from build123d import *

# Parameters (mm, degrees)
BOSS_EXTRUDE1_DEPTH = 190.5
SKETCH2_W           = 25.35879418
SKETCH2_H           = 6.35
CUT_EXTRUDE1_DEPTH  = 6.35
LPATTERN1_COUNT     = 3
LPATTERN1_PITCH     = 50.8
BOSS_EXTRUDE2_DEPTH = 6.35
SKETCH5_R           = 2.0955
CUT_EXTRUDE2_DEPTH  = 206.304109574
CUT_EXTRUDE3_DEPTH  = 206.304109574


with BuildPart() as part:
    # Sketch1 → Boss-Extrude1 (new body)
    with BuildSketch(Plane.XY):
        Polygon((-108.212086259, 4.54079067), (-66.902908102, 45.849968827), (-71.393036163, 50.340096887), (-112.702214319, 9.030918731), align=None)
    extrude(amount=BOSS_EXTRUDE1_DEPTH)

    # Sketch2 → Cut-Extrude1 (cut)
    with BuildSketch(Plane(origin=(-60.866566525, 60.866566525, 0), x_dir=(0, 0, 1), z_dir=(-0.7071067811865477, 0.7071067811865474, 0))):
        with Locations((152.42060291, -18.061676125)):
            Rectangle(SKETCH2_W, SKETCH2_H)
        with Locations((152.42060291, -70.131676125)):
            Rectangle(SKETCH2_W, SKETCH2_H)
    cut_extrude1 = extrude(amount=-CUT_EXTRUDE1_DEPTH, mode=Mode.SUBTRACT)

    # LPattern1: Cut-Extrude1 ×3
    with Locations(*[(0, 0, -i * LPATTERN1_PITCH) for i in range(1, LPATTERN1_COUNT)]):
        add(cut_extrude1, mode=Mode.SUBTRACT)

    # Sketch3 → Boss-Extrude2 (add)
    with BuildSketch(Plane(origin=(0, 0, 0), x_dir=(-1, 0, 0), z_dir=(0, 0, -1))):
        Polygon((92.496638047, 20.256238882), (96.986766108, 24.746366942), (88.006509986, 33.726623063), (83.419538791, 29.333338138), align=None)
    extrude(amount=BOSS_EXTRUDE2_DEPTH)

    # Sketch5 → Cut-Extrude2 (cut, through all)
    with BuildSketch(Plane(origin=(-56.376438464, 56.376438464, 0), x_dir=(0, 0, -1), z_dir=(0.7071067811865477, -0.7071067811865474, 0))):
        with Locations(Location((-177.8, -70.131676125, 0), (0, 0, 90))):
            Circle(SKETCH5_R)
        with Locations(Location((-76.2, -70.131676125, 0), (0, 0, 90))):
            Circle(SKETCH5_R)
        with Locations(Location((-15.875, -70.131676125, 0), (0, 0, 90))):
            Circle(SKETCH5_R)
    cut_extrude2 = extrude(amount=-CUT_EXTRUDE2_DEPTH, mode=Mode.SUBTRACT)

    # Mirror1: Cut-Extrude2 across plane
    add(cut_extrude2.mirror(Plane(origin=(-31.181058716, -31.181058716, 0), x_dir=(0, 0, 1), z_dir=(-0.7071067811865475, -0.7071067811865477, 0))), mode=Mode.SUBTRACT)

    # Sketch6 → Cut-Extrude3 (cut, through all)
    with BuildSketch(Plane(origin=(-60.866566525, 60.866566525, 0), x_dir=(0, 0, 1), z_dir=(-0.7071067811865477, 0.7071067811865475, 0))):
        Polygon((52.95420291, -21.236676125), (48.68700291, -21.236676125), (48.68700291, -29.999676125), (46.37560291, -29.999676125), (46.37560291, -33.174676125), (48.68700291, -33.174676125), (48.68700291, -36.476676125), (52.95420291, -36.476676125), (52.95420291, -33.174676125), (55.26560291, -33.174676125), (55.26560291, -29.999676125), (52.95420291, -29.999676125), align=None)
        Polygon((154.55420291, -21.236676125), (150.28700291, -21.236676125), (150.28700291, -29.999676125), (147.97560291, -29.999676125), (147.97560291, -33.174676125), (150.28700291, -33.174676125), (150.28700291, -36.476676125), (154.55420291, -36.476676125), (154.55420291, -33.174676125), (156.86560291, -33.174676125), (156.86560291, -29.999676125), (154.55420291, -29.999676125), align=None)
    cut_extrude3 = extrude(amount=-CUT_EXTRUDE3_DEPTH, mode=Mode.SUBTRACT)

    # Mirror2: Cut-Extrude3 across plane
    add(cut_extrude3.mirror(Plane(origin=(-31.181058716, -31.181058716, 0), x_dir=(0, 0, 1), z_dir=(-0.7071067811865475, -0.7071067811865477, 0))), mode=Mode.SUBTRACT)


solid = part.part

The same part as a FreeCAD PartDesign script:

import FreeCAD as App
import Part
import Sketcher
from FreeCAD import Vector
Q = App.Units.Quantity

doc = App.newDocument("Part")
body = doc.addObject("PartDesign::Body", "Body")

# Sketch on XY plane
sketch1 = doc.addObject("Sketcher::SketchObject", "Sketch")
body.addObject(sketch1)
sketch1.AttachmentSupport = (doc.XY_Plane, [""])
sketch1.MapMode = "FlatFace"
sketch1.addGeometry([
    Part.LineSegment(Vector(-108, 5, 0), Vector(-67, 46, 0)),
    Part.LineSegment(Vector(-67, 46, 0), Vector(-71, 50, 0)),
    Part.LineSegment(Vector(-71, 50, 0), Vector(-113, 9, 0)),
    Part.LineSegment(Vector(-113, 9, 0), Vector(-108, 5, 0)),
], False)
sketch1.addConstraint([
    Sketcher.Constraint("Coincident", 0, 2, 1, 1),
    Sketcher.Constraint("Coincident", 1, 2, 2, 1),
    Sketcher.Constraint("Coincident", 2, 2, 3, 1),
    Sketcher.Constraint("Coincident", 3, 2, 0, 1),
    Sketcher.Constraint("Perpendicular", 0, 1),
    Sketcher.Constraint("Perpendicular", 1, 2),
    Sketcher.Constraint("Perpendicular", 2, 3),
    Sketcher.Constraint("Angle", 0, Q("45 deg")),
    Sketcher.Constraint("Distance", 0, Q("2.3 in")),
    Sketcher.Constraint("Distance", 1, Q("0.25 in")),
    Sketcher.Constraint("DistanceX", 0, 2, -1, 1, Q("66.902908 mm")),
    Sketcher.Constraint("DistanceY", -1, 1, 0, 2, Q("45.849969 mm")),
])
pad1 = doc.addObject("PartDesign::Pad", "Pad")
body.addObject(pad1)
pad1.Profile = sketch1
pad1.Length = Q("7.5 in")

# Sketch on an angled plane
sketch2 = doc.addObject("Sketcher::SketchObject", "Sketch001")
body.addObject(sketch2)
sketch2.Placement = App.Placement(Vector(-60.866567, 60.866567, 0), App.Rotation(Vector(0, 0, 1), Vector(0.707106781, 0.707106781, 0), Vector(-0.707106781, 0.707106781, 0), "ZXY"))
sketch2.addGeometry([
    Part.LineSegment(Vector(140, -15, 0), Vector(140, -21, 0)),  # 0
    Part.LineSegment(Vector(140, -21, 0), Vector(165, -21, 0)),  # 1
    Part.LineSegment(Vector(165, -21, 0), Vector(165, -15, 0)),  # 2
    Part.LineSegment(Vector(165, -15, 0), Vector(140, -15, 0)),  # 3
    Part.LineSegment(Vector(140, -67, 0), Vector(140, -73, 0)),  # 4
    Part.LineSegment(Vector(140, -73, 0), Vector(165, -73, 0)),  # 5
    Part.LineSegment(Vector(165, -73, 0), Vector(165, -67, 0)),  # 6
    Part.LineSegment(Vector(165, -67, 0), Vector(140, -67, 0)),  # 7
], False)
sketch2.addConstraint([
    Sketcher.Constraint("Coincident", 0, 2, 1, 1),
    Sketcher.Constraint("Coincident", 1, 2, 2, 1),
    Sketcher.Constraint("Coincident", 2, 2, 3, 1),
    Sketcher.Constraint("Coincident", 3, 2, 0, 1),
    Sketcher.Constraint("Coincident", 4, 2, 5, 1),
    Sketcher.Constraint("Coincident", 5, 2, 6, 1),
    Sketcher.Constraint("Coincident", 6, 2, 7, 1),
    Sketcher.Constraint("Coincident", 7, 2, 4, 1),
    Sketcher.Constraint("Vertical", 0),
    Sketcher.Constraint("Horizontal", 1),
    Sketcher.Constraint("Vertical", 2),
    Sketcher.Constraint("Horizontal", 3),
    Sketcher.Constraint("Vertical", 4),
    Sketcher.Constraint("Horizontal", 5),
    Sketcher.Constraint("Vertical", 6),
    Sketcher.Constraint("Horizontal", 7),
    Sketcher.Constraint("Vertical", 3, 2, 4, 2),
    Sketcher.Constraint("Vertical", 2, 2, 5, 2),
    Sketcher.Constraint("Equal", 2, 4),
    Sketcher.Constraint("DistanceY", 0, 2, 0, 1, Q("0.25 in")),
    Sketcher.Constraint("DistanceX", -1, 1, 1, 2, Q("6.5 in")),
    Sketcher.Constraint("DistanceY", 4, 2, 3, 2, Q("2.3 in")),
    Sketcher.Constraint("DistanceX", 1, 1, 1, 2, Q("25.358794 mm")),
    Sketcher.Constraint("DistanceY", 0, 2, -1, 1, Q("21.236676 mm")),
])
pocket1 = doc.addObject("PartDesign::Pocket", "Pocket")
body.addObject(pocket1)
pocket1.Profile = sketch2
pocket1.Length = Q("0.25 in")
doc.recompute()

linearpattern = doc.addObject("PartDesign::LinearPattern", "LinearPattern")
body.addObject(linearpattern)
linearpattern.Originals = [pocket1]
linearpattern.Direction = (doc.Z_Axis, [""])
linearpattern.Mode = "offset"
linearpattern.Offset = Q("2 in")
linearpattern.Occurrences = 3
linearpattern.Reversed = True
body.Tip = linearpattern

# Sketch on XY plane
sketch3 = doc.addObject("Sketcher::SketchObject", "Sketch002")
body.addObject(sketch3)
sketch3.AttachmentSupport = (doc.XY_Plane, [""])
sketch3.MapMode = "FlatFace"
sketch3.addGeometry([
    Part.LineSegment(Vector(-92, 20, 0), Vector(-97, 25, 0)),
    Part.LineSegment(Vector(-97, 25, 0), Vector(-88, 34, 0)),
    Part.LineSegment(Vector(-88, 34, 0), Vector(-83, 29, 0)),
    Part.LineSegment(Vector(-83, 29, 0), Vector(-92, 20, 0)),
], False)
sketch3.addConstraint([
    Sketcher.Constraint("Coincident", 0, 2, 1, 1),
    Sketcher.Constraint("Coincident", 1, 2, 2, 1),
    Sketcher.Constraint("Coincident", 2, 2, 3, 1),
    Sketcher.Constraint("Coincident", 3, 2, 0, 1),
    Sketcher.Constraint("Perpendicular", 0, 1),
    Sketcher.Constraint("Parallel", 1, 3),
    Sketcher.Constraint("Angle", 0, Q("135 deg")),
    Sketcher.Constraint("Distance", 1, Q("0.5 in")),
    Sketcher.Constraint("Distance", 0, Q("0.25 in")),
    Sketcher.Constraint("DistanceX", 3, 2, -1, 1, Q("3.6415999 in")),
    Sketcher.Constraint("DistanceX", 3, 2, 2, 2, Q("9.077099 mm")),
    Sketcher.Constraint("DistanceY", -1, 1, 2, 2, Q("29.333338 mm")),
])
pad2 = doc.addObject("PartDesign::Pad", "Pad001")
body.addObject(pad2)
pad2.Profile = sketch3
pad2.Length = Q("0.25 in")
pad2.Reversed = True

# Sketch on an angled plane
sketch4 = doc.addObject("Sketcher::SketchObject", "Sketch003")
body.addObject(sketch4)
sketch4.Placement = App.Placement(Vector(-56.376438, 56.376438, 0), App.Rotation(Vector(0, 0, -1), Vector(0.707106781, 0.707106781, 0), Vector(0.707106781, -0.707106781, 0), "ZXY"))
sketch4.addGeometry([
    Part.Circle(Vector(-177.8, -70.1, 0), Vector(0, 0, 1), 2.1),
    Part.Circle(Vector(-76.2, -70.1, 0), Vector(0, 0, 1), 2.1),
    Part.Circle(Vector(-15.9, -70.1, 0), Vector(0, 0, 1), 2.1),
], False)
sketch4.addConstraint([
    Sketcher.Constraint("Equal", 0, 1),
    Sketcher.Constraint("Equal", 1, 2),
    Sketcher.Constraint("Horizontal", 0, 3, 1, 3),
    Sketcher.Constraint("Horizontal", 1, 3, 2, 3),
    Sketcher.Constraint("Diameter", 0, Q("0.165 in")),
    Sketcher.Constraint("DistanceX", 0, 3, -1, 1, Q("7 in")),
    Sketcher.Constraint("DistanceX", 1, 3, -1, 1, Q("3 in")),
    Sketcher.Constraint("DistanceX", 2, 3, -1, 1, Q("0.625 in")),
    Sketcher.Constraint("DistanceY", 0, 3, -1, 1, Q("70.131676 mm")),
])
pocket2 = doc.addObject("PartDesign::Pocket", "Pocket001")
body.addObject(pocket2)
pocket2.Profile = sketch4
pocket2.Type = "ThroughAll"
doc.recompute()

datumplane = doc.addObject("PartDesign::Plane", "DatumPlane")
body.addObject(datumplane)
datumplane.Placement = App.Placement(Vector(-31.181059, -31.181059, 0), App.Rotation(Vector(-0.707106781, 0.707106781, 0), Vector(0, 0, -1), Vector(-0.707106781, -0.707106781, 0), "ZXY"))
mirrored = doc.addObject("PartDesign::Mirrored", "Mirrored")
body.addObject(mirrored)
mirrored.Originals = [pocket2]
mirrored.MirrorPlane = (datumplane, [""])
body.Tip = mirrored

# Sketch on an angled plane
sketch5 = doc.addObject("Sketcher::SketchObject", "Sketch004")
body.addObject(sketch5)
sketch5.Placement = App.Placement(Vector(-60.866567, 60.866567, 0), App.Rotation(Vector(0, 0, 1), Vector(0.707106781, 0.707106781, 0), Vector(-0.707106781, 0.707106781, 0), "ZXY"))
sketch5.addGeometry([
    Part.LineSegment(Vector(53, -21.2, 0), Vector(48.7, -21.2, 0)),  # 0
    Part.LineSegment(Vector(48.7, -21.2, 0), Vector(48.7, -30, 0)),  # 1
    Part.LineSegment(Vector(48.7, -30, 0), Vector(46.4, -30, 0)),  # 2
    Part.LineSegment(Vector(46.4, -30, 0), Vector(46.4, -33.2, 0)),  # 3
    Part.LineSegment(Vector(46.4, -33.2, 0), Vector(48.7, -33.2, 0)),  # 4
    Part.LineSegment(Vector(48.7, -33.2, 0), Vector(48.7, -36.5, 0)),  # 5
    Part.LineSegment(Vector(48.7, -36.5, 0), Vector(53, -36.5, 0)),  # 6
    Part.LineSegment(Vector(53, -36.5, 0), Vector(53, -33.2, 0)),  # 7
    Part.LineSegment(Vector(53, -33.2, 0), Vector(55.3, -33.2, 0)),  # 8
    Part.LineSegment(Vector(55.3, -33.2, 0), Vector(55.3, -30, 0)),  # 9
    Part.LineSegment(Vector(55.3, -30, 0), Vector(53, -30, 0)),  # 10
    Part.LineSegment(Vector(53, -30, 0), Vector(53, -21.2, 0)),  # 11
    Part.LineSegment(Vector(154.6, -21.2, 0), Vector(150.3, -21.2, 0)),  # 12
    Part.LineSegment(Vector(150.3, -21.2, 0), Vector(150.3, -30, 0)),  # 13
    Part.LineSegment(Vector(150.3, -30, 0), Vector(148, -30, 0)),  # 14
    Part.LineSegment(Vector(148, -30, 0), Vector(148, -33.2, 0)),  # 15
    Part.LineSegment(Vector(148, -33.2, 0), Vector(150.3, -33.2, 0)),  # 16
    Part.LineSegment(Vector(150.3, -33.2, 0), Vector(150.3, -36.5, 0)),  # 17
    Part.LineSegment(Vector(150.3, -36.5, 0), Vector(154.6, -36.5, 0)),  # 18
    Part.LineSegment(Vector(154.6, -36.5, 0), Vector(154.6, -33.2, 0)),  # 19
    Part.LineSegment(Vector(154.6, -33.2, 0), Vector(156.9, -33.2, 0)),  # 20
    Part.LineSegment(Vector(156.9, -33.2, 0), Vector(156.9, -30, 0)),  # 21
    Part.LineSegment(Vector(156.9, -30, 0), Vector(154.6, -30, 0)),  # 22
    Part.LineSegment(Vector(154.6, -30, 0), Vector(154.6, -21.2, 0)),  # 23
], False)
sketch5.addConstraint([
    Sketcher.Constraint("Coincident", 0, 2, 1, 1),
    Sketcher.Constraint("Coincident", 1, 2, 2, 1),
    Sketcher.Constraint("Coincident", 2, 2, 3, 1),
    Sketcher.Constraint("Coincident", 3, 2, 4, 1),
    Sketcher.Constraint("Coincident", 4, 2, 5, 1),
    Sketcher.Constraint("Coincident", 5, 2, 6, 1),
    Sketcher.Constraint("Coincident", 6, 2, 7, 1),
    Sketcher.Constraint("Coincident", 7, 2, 8, 1),
    Sketcher.Constraint("Coincident", 8, 2, 9, 1),
    Sketcher.Constraint("Coincident", 9, 2, 10, 1),
    Sketcher.Constraint("Coincident", 10, 2, 11, 1),
    Sketcher.Constraint("Coincident", 11, 2, 0, 1),
    Sketcher.Constraint("Coincident", 12, 2, 13, 1),
    Sketcher.Constraint("Coincident", 13, 2, 14, 1),
    Sketcher.Constraint("Coincident", 14, 2, 15, 1),
    Sketcher.Constraint("Coincident", 15, 2, 16, 1),
    Sketcher.Constraint("Coincident", 16, 2, 17, 1),
    Sketcher.Constraint("Coincident", 17, 2, 18, 1),
    Sketcher.Constraint("Coincident", 18, 2, 19, 1),
    Sketcher.Constraint("Coincident", 19, 2, 20, 1),
    Sketcher.Constraint("Coincident", 20, 2, 21, 1),
    Sketcher.Constraint("Coincident", 21, 2, 22, 1),
    Sketcher.Constraint("Coincident", 22, 2, 23, 1),
    Sketcher.Constraint("Coincident", 23, 2, 12, 1),
    Sketcher.Constraint("Horizontal", 0),
    Sketcher.Constraint("Vertical", 1),
    Sketcher.Constraint("Horizontal", 2),
    Sketcher.Constraint("Vertical", 3),
    Sketcher.Constraint("Horizontal", 4),
    Sketcher.Constraint("Vertical", 5),
    Sketcher.Constraint("Horizontal", 6),
    Sketcher.Constraint("Vertical", 7),
    Sketcher.Constraint("Horizontal", 8),
    Sketcher.Constraint("Vertical", 9),
    Sketcher.Constraint("Horizontal", 10),
    Sketcher.Constraint("Vertical", 11),
    Sketcher.Constraint("Horizontal", 12),
    Sketcher.Constraint("Vertical", 13),
    Sketcher.Constraint("Horizontal", 14),
    Sketcher.Constraint("Vertical", 15),
    Sketcher.Constraint("Horizontal", 16),
    Sketcher.Constraint("Vertical", 17),
    Sketcher.Constraint("Horizontal", 18),
    Sketcher.Constraint("Vertical", 19),
    Sketcher.Constraint("Horizontal", 20),
    Sketcher.Constraint("Vertical", 21),
    Sketcher.Constraint("Horizontal", 22),
    Sketcher.Constraint("Vertical", 23),
    Sketcher.Constraint("Horizontal", 4, 2, 7, 2),
    Sketcher.Constraint("Horizontal", 2, 2, 9, 2),
    Sketcher.Constraint("Horizontal", 11, 2, 12, 2),
    Sketcher.Constraint("Horizontal", 10, 2, 13, 2),
    Sketcher.Constraint("Horizontal", 8, 2, 15, 2),
    Sketcher.Constraint("Horizontal", 6, 2, 17, 2),
    Sketcher.Constraint("Horizontal", 16, 2, 19, 2),
    Sketcher.Constraint("Horizontal", 14, 2, 21, 2),
    Sketcher.Constraint("Vertical", 1, 2, 4, 2),
    Sketcher.Constraint("Vertical", 7, 2, 10, 2),
    Sketcher.Constraint("Vertical", 13, 2, 16, 2),
    Sketcher.Constraint("Vertical", 19, 2, 22, 2),
    Sketcher.Constraint("Equal", 4, 8),
    Sketcher.Constraint("Equal", 6, 12),
    Sketcher.Constraint("Equal", 10, 14),
    Sketcher.Constraint("Equal", 16, 20),
    Sketcher.Constraint("DistanceY", 5, 2, 5, 1, Q("0.13 in")),
    Sketcher.Constraint("DistanceY", 5, 2, 0, 2, Q("0.6 in")),
    Sketcher.Constraint("DistanceX", 0, 2, 0, 1, Q("0.168 in")),
    Sketcher.Constraint("DistanceX", 2, 2, 2, 1, Q("0.091 in")),
    Sketcher.Constraint("DistanceY", 1, 2, 1, 1, Q("0.345 in")),
    Sketcher.Constraint("DistanceX", 9, 2, 14, 2, Q("3.65 in")),
    Sketcher.Constraint("DistanceX", -1, 1, 0, 2, Q("48.687003 mm")),
    Sketcher.Constraint("DistanceY", 0, 2, -1, 1, Q("21.236676 mm")),
])
pocket3 = doc.addObject("PartDesign::Pocket", "Pocket002")
body.addObject(pocket3)
pocket3.Profile = sketch5
pocket3.Type = "ThroughAll"
doc.recompute()

datumplane2 = doc.addObject("PartDesign::Plane", "DatumPlane001")
body.addObject(datumplane2)
datumplane2.Placement = App.Placement(Vector(-31.181059, -31.181059, 0), App.Rotation(Vector(-0.707106781, 0.707106781, 0), Vector(0, 0, -1), Vector(-0.707106781, -0.707106781, 0), "ZXY"))
mirrored2 = doc.addObject("PartDesign::Mirrored", "Mirrored001")
body.addObject(mirrored2)
mirrored2.Originals = [pocket3]
mirrored2.MirrorPlane = (datumplane2, [""])
body.Tip = mirrored2

doc.recompute()
